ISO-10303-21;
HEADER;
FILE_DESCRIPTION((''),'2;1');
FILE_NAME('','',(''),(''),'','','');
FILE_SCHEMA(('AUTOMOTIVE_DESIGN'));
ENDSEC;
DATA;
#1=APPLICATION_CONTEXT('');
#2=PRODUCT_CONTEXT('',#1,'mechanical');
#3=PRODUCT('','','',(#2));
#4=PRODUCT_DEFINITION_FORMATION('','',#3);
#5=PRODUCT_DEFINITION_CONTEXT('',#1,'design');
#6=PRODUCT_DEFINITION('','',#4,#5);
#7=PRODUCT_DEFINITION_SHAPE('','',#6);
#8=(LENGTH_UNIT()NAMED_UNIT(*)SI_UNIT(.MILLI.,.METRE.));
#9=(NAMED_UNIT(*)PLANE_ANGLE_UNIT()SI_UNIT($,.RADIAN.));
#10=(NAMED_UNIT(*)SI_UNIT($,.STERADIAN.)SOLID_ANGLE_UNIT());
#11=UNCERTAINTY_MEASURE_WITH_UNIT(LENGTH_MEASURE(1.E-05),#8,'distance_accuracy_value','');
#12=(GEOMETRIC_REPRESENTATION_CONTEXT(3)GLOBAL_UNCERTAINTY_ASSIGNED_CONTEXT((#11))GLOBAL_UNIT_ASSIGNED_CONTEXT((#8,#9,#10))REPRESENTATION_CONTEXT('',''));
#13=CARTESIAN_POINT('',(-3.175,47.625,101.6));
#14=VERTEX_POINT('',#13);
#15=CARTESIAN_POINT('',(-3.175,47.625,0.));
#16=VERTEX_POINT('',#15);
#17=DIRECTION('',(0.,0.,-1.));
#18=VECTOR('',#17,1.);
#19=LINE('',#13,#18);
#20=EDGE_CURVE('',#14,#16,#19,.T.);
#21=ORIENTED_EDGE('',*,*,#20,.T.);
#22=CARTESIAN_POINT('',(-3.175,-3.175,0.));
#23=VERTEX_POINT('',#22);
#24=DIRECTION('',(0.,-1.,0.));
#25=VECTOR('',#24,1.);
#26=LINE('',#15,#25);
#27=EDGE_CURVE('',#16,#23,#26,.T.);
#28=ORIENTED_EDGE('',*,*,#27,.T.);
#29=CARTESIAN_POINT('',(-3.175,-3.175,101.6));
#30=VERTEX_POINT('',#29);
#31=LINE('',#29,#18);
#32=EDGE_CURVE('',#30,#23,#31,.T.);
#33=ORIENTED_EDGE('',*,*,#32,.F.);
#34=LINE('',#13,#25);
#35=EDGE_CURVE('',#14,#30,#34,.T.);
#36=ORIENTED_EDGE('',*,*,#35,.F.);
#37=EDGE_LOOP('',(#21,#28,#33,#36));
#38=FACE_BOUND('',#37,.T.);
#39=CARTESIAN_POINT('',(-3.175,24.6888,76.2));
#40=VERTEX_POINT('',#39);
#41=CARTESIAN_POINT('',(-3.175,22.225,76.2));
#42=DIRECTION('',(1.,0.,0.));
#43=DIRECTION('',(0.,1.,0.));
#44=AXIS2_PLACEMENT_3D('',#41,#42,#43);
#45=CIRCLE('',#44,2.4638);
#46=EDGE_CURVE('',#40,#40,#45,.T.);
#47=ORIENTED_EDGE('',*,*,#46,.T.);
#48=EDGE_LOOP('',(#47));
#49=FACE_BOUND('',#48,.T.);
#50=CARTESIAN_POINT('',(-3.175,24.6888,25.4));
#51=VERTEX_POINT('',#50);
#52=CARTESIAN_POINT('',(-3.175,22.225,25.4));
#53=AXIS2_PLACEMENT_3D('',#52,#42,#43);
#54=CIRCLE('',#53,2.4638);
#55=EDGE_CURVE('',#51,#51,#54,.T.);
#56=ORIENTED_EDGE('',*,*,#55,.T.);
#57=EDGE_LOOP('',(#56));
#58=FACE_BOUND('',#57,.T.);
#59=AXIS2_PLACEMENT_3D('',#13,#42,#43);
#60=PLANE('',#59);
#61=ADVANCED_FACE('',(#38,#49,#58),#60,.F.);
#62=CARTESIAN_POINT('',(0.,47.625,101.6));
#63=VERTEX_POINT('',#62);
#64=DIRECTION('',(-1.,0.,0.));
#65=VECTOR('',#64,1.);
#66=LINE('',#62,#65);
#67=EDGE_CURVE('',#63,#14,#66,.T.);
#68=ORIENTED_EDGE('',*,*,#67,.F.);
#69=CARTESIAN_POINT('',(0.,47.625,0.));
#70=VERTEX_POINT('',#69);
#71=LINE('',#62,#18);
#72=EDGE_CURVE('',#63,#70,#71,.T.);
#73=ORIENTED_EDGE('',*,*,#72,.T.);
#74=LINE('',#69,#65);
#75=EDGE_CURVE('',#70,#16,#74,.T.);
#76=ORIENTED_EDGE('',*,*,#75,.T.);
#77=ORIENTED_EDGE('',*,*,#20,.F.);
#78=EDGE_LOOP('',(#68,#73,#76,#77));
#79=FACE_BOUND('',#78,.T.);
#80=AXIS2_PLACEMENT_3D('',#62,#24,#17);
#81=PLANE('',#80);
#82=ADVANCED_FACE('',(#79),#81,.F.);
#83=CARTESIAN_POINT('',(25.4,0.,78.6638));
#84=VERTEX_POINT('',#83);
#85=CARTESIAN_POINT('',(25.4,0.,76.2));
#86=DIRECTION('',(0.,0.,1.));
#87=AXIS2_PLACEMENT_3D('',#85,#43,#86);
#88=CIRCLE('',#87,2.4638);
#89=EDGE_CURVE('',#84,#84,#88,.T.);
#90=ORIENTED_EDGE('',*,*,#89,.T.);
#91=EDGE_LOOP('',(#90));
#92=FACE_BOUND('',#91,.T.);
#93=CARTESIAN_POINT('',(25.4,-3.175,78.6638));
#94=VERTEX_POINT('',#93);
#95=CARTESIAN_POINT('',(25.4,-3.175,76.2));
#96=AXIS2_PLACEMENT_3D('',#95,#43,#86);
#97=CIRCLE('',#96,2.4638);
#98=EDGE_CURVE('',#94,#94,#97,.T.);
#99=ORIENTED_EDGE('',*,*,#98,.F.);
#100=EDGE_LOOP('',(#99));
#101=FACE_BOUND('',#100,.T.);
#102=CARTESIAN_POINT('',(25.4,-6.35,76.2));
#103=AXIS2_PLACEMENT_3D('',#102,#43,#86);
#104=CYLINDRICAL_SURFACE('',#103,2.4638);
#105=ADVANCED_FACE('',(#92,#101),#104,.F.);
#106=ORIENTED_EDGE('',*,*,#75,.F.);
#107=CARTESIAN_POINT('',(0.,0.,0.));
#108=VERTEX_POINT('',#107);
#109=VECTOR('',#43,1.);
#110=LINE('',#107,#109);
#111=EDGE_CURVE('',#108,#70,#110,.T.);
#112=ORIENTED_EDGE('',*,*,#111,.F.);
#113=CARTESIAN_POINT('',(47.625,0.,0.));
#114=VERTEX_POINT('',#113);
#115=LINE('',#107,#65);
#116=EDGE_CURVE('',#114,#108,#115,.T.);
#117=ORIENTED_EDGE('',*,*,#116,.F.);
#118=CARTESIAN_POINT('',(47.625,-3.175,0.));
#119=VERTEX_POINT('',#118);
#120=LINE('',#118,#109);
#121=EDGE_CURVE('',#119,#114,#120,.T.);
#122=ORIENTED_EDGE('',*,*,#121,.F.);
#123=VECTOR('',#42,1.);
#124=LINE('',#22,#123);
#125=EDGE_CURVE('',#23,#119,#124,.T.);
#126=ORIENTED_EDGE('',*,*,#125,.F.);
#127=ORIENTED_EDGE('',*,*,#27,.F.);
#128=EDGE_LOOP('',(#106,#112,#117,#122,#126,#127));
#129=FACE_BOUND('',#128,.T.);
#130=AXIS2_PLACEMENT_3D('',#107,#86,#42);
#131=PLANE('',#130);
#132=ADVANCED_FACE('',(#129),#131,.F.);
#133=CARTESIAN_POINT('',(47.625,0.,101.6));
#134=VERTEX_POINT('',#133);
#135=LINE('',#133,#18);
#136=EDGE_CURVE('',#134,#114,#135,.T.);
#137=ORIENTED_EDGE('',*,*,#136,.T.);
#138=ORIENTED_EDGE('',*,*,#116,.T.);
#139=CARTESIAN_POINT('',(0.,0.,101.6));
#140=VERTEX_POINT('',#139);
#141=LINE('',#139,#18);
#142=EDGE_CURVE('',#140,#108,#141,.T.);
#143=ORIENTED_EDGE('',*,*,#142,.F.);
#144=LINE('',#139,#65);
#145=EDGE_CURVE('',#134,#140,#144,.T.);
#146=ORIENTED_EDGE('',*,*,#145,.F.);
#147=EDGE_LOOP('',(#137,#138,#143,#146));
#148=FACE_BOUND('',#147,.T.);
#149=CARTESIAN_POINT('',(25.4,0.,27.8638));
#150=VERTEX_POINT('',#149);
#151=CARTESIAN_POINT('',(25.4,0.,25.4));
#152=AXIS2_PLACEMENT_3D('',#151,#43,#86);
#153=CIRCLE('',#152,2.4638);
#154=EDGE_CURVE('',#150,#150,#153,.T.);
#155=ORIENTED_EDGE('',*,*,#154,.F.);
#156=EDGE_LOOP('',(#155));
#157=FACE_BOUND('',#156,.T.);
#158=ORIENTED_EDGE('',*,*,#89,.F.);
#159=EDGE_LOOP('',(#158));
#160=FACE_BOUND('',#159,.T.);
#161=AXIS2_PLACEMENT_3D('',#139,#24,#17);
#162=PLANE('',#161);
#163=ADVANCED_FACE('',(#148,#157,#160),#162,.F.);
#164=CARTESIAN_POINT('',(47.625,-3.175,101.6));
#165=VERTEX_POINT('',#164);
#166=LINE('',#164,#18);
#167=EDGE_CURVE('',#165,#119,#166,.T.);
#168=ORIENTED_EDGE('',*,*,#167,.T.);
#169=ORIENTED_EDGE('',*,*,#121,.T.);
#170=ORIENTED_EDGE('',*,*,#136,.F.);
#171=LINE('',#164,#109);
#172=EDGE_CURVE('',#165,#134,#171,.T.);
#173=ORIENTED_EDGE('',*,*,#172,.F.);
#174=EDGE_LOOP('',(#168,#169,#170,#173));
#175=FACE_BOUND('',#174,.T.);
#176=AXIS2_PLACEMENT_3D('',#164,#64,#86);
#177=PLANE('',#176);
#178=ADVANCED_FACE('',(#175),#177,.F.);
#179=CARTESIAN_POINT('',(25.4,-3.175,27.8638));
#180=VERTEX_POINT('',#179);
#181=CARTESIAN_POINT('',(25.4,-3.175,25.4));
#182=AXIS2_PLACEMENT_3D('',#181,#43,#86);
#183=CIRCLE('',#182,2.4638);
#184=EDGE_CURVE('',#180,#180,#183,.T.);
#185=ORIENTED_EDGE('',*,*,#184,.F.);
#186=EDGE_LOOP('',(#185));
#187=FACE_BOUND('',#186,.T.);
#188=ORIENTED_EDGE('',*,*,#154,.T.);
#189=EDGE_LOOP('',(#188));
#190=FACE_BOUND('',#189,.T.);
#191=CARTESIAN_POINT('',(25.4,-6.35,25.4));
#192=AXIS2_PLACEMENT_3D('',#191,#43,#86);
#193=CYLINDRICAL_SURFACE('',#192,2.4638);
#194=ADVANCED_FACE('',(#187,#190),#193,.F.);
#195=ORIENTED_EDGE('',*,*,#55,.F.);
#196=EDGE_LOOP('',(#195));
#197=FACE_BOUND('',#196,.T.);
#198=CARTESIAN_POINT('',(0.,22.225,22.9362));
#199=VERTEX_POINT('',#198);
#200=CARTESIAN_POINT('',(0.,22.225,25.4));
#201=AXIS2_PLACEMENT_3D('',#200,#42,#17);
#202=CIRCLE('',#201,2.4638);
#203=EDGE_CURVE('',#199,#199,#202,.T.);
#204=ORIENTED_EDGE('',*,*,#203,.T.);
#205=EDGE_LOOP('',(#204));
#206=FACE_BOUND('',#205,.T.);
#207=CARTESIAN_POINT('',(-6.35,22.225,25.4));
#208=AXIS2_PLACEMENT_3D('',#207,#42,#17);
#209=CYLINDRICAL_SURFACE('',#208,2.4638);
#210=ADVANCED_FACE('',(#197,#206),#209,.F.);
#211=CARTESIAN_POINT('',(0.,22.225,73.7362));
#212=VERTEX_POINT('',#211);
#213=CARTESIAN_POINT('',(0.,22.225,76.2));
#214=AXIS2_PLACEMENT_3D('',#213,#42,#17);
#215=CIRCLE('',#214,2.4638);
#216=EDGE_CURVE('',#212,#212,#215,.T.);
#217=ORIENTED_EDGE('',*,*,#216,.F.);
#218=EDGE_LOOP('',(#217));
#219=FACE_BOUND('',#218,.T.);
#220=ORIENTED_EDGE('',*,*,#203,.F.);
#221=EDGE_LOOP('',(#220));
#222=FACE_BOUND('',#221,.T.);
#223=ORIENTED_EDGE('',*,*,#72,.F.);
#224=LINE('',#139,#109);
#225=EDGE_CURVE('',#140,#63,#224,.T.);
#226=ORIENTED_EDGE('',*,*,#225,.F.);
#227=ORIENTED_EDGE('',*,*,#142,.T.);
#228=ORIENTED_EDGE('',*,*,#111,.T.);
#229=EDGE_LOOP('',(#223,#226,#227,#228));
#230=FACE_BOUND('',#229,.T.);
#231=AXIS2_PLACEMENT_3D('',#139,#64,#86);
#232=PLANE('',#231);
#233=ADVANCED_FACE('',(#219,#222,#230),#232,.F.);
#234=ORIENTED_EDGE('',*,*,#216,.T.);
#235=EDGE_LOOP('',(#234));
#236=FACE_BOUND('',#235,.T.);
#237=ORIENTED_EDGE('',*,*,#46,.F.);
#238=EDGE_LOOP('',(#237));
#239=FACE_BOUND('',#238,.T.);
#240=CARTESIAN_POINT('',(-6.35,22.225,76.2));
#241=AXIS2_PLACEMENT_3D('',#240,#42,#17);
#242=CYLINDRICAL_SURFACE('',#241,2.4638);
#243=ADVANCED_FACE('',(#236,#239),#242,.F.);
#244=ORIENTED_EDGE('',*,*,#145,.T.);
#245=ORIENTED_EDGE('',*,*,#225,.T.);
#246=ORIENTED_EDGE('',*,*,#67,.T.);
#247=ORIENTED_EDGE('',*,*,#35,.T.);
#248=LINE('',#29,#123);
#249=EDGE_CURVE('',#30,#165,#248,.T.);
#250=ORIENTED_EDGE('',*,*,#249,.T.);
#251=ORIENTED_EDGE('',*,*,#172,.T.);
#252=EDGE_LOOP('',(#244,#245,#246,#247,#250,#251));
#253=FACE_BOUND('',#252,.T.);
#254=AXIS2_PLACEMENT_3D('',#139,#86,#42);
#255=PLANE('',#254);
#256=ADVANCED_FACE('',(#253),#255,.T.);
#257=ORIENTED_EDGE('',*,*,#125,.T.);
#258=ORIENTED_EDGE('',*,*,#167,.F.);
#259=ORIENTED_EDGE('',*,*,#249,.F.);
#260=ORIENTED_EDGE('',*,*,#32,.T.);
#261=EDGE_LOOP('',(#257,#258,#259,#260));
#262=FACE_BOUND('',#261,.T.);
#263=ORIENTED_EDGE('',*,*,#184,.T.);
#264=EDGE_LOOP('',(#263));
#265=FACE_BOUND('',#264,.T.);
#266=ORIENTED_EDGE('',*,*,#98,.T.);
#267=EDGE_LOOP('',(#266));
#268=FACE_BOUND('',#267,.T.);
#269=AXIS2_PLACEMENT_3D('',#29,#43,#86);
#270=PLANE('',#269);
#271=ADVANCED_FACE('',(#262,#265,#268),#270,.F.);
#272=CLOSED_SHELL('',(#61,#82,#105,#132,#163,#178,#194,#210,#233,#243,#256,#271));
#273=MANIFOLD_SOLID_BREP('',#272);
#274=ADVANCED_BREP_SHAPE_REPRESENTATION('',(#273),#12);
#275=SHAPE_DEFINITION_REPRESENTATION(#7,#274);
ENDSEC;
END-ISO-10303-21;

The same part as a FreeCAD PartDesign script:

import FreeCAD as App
import Part
import Sketcher

V = App.Vector
Q = App.Units.Quantity


def add_polygon(sketch, points):
    """Adds a closed chain of lines whose ends are joined by coincident constraints."""
    first, n = sketch.GeometryCount, len(points)
    for a, b in zip(points, points[1:] + points[:1]):
        sketch.addGeometry(Part.LineSegment(App.Vector(*a, 0), App.Vector(*b, 0)), False)
    for i in range(n):
        sketch.addConstraint(Sketcher.Constraint("Coincident", first + i, 2, first + (i + 1) % n, 1))

doc = App.newDocument("Part")
body = doc.addObject("PartDesign::Body", "Body")

sketch1 = body.newObject("Sketcher::SketchObject", "Sketch")
sketch1.AttachmentSupport = (doc.getObject("XY_Plane"), [""])
sketch1.MapMode = "FlatFace"
add_polygon(sketch1, [(0, 0), (0, 47.625), (-3.175, 47.625), (-3.175, -3.175), (47.625, -3.175), (47.625, 0)])
sketch1.addConstraint(Sketcher.Constraint("Vertical", 0))
sketch1.addConstraint(Sketcher.Constraint("Horizontal", 1))
sketch1.addConstraint(Sketcher.Constraint("Vertical", 2))
sketch1.addConstraint(Sketcher.Constraint("Horizontal", 3))
sketch1.addConstraint(Sketcher.Constraint("Vertical", 4))
sketch1.addConstraint(Sketcher.Constraint("Horizontal", 5))
sketch1.addConstraint(Sketcher.Constraint("Coincident", 5, 2, -1, 1))
sketch1.addConstraint(Sketcher.Constraint("Equal", 5, 0))
sketch1.addConstraint(Sketcher.Constraint("Equal", 3, 2))
sketch1.addConstraint(Sketcher.Constraint("DistanceX", 3, 1, 3, 2, Q("2 in")))
sketch1.addConstraint(Sketcher.Constraint("DistanceX", 1, 2, 1, 1, Q("0.125 in")))
pad1 = body.newObject("PartDesign::Pad", "Pad")
pad1.Profile = sketch1
pad1.Length = Q("4 in")

sketch2 = body.newObject("Sketcher::SketchObject", "Sketch001")
sketch2.AttachmentSupport = (doc.getObject("XZ_Plane"), [""])
sketch2.MapMode = "FlatFace"
sketch2.addGeometry(Part.Circle(V(25.4, 76.2, 0), V(0, 0, 1), 2.4638), False)
sketch2.addGeometry(Part.Circle(V(25.4, 25.4, 0), V(0, 0, 1), 2.4638), False)
sketch2.addConstraint(Sketcher.Constraint("Equal", 0, 1))
sketch2.addConstraint(Sketcher.Constraint("Vertical", 0, 3, 1, 3))
sketch2.addConstraint(Sketcher.Constraint("Diameter", 0, Q("0.194 in")))
sketch2.addConstraint(Sketcher.Constraint("DistanceX", -1, 1, 0, 3, Q("1 in")))
sketch2.addConstraint(Sketcher.Constraint("DistanceY", -1, 1, 0, 3, Q("3 in")))
sketch2.addConstraint(Sketcher.Constraint("DistanceY", -1, 1, 1, 3, Q("1 in")))
pocket1 = body.newObject("PartDesign::Pocket", "Pocket")
pocket1.Profile = sketch2
pocket1.Length = Q("0.25 in")
pocket1.Reversed = True

sketch3 = body.newObject("Sketcher::SketchObject", "Sketch002")
sketch3.AttachmentSupport = (doc.getObject("YZ_Plane"), [""])
sketch3.MapMode = "FlatFace"
sketch3.addGeometry(Part.Circle(V(22.225, 25.4, 0), V(0, 0, 1), 2.4638), False)
sketch3.addGeometry(Part.Circle(V(22.225, 76.2, 0), V(0, 0, 1), 2.4638), False)
sketch3.addConstraint(Sketcher.Constraint("Equal", 0, 1))
sketch3.addConstraint(Sketcher.Constraint("Vertical", 0, 3, 1, 3))
sketch3.addConstraint(Sketcher.Constraint("Diameter", 0, Q("0.194 in")))
sketch3.addConstraint(Sketcher.Constraint("DistanceY", -1, 1, 0, 3, Q("1 in")))
sketch3.addConstraint(Sketcher.Constraint("DistanceY", -1, 1, 1, 3, Q("3 in")))
sketch3.addConstraint(Sketcher.Constraint("DistanceX", -1, 1, 0, 3, Q("0.875 in")))
pocket2 = body.newObject("PartDesign::Pocket", "Pocket001")
pocket2.Profile = sketch3
pocket2.Length = Q("0.25 in")

doc.recompute()
